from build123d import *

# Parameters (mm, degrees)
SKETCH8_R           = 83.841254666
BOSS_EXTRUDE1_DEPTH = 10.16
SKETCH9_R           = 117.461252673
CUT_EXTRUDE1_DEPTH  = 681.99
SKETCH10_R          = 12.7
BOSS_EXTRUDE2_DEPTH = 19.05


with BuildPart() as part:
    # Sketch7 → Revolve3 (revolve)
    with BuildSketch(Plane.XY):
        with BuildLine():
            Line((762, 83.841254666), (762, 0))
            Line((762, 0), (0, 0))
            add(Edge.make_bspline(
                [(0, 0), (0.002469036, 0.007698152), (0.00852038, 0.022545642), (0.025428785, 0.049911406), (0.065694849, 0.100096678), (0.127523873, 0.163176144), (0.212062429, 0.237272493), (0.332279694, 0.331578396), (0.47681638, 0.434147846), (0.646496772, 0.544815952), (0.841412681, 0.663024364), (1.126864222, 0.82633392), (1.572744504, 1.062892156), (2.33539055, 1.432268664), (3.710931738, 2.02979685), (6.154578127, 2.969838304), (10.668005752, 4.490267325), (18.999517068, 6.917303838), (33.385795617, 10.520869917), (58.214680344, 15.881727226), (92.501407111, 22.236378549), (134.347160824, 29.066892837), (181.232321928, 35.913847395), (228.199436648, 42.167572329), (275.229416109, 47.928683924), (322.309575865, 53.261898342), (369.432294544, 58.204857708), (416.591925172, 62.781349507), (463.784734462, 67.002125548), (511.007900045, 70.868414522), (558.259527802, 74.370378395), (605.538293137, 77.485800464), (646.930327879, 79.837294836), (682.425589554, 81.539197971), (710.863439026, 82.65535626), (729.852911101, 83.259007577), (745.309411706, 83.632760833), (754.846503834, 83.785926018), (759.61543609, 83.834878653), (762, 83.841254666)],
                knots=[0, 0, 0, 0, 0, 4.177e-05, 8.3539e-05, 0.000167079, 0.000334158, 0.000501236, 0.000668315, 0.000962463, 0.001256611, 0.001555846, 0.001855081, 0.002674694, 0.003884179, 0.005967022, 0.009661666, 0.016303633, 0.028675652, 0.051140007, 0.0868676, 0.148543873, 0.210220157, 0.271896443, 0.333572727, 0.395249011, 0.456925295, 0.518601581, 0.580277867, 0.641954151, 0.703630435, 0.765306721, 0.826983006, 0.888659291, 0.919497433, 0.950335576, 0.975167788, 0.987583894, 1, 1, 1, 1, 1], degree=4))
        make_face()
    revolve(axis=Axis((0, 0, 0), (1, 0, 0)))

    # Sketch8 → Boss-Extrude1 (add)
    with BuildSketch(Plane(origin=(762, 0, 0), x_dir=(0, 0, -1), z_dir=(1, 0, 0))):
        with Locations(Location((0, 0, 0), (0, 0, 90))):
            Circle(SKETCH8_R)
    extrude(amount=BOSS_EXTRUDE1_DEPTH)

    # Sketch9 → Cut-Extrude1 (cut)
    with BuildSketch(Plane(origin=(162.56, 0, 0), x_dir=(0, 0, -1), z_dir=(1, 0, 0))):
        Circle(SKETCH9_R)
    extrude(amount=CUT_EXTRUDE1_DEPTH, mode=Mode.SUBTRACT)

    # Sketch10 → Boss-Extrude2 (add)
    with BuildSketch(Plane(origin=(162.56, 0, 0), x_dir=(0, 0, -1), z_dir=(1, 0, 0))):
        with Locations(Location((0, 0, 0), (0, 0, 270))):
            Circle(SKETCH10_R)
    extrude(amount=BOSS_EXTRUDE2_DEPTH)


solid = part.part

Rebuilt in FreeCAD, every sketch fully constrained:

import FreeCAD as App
import Part
import Sketcher

V = App.Vector
Q = App.Units.Quantity

doc = App.newDocument("Part")
body = doc.addObject("PartDesign::Body", "Body")

# Sketch on XY plane
sketch1 = doc.addObject("Sketcher::SketchObject", "Sketch")
body.addObject(sketch1)
sketch1.AttachmentSupport = (doc.XY_Plane, [""])
sketch1.MapMode = "FlatFace"
sketch1.addGeometry(Part.LineSegment(V(762, 0, 0), V(762, 83.841255, 0)), False)
sketch1.addGeometry(Part.BSplineCurve([V(0, 0, 0), V(0.002469, 0.007698, 0), V(0.00852, 0.022546, 0), V(0.025429, 0.049911, 0), V(0.065695, 0.100097, 0), V(0.127524, 0.163176, 0), V(0.212062, 0.237272, 0), V(0.33228, 0.331578, 0), V(0.476816, 0.434148, 0), V(0.646497, 0.544816, 0), V(0.841413, 0.663024, 0), V(1.126864, 0.826334, 0), V(1.572745, 1.062892, 0), V(2.335391, 1.432269, 0), V(3.710932, 2.029797, 0), V(6.154578, 2.969838, 0), V(10.668006, 4.490267, 0), V(18.999517, 6.917304, 0), V(33.385796, 10.52087, 0), V(58.21468, 15.881727, 0), V(92.501407, 22.236379, 0), V(134.347161, 29.066893, 0), V(181.232322, 35.913847, 0), V(228.199437, 42.167572, 0), V(275.229416, 47.928684, 0), V(322.309576, 53.261898, 0), V(369.432295, 58.204858, 0), V(416.591925, 62.78135, 0), V(463.784734, 67.002126, 0), V(511.0079, 70.868415, 0), V(558.259528, 74.370378, 0), V(605.538293, 77.4858, 0), V(646.930328, 79.837295, 0), V(682.42559, 81.539198, 0), V(710.863439, 82.655356, 0), V(729.852911, 83.259008, 0), V(745.309412, 83.632761, 0), V(754.846504, 83.785926, 0), V(759.615436, 83.834879, 0), V(762, 83.841255, 0)], [5, 1, 1, 1, 1, 1, 1, 1, 1, 1, 1, 1, 1, 1, 1, 1, 1, 1, 1, 1, 1, 1, 1, 1, 1, 1, 1, 1, 1, 1, 1, 1, 1, 1, 1, 1, 5], [0, 0.00004177, 0.000083539, 0.000167079, 0.000334158, 0.000501236, 0.000668315, 0.000962463, 0.001256611, 0.001555846, 0.001855081, 0.002674694, 0.003884179, 0.005967022, 0.009661666, 0.016303633, 0.028675652, 0.051140007, 0.0868676, 0.148543873, 0.210220157, 0.271896443, 0.333572727, 0.395249011, 0.456925295, 0.518601581, 0.580277867, 0.641954151, 0.703630435, 0.765306721, 0.826983006, 0.888659291, 0.919497433, 0.950335576, 0.975167788, 0.987583894, 1], False, 4, [1, 1, 1, 1, 1, 1, 1, 1, 1, 1, 1, 1, 1, 1, 1, 1, 1, 1, 1, 1, 1, 1, 1, 1, 1, 1, 1, 1, 1, 1, 1, 1, 1, 1, 1, 1, 1, 1, 1, 1], False), False)
sketch1.addGeometry(Part.LineSegment(V(0, 0, 0), V(762, 0, 0)), False)
sketch1.addConstraint(Sketcher.Constraint("Block", 1))
sketch1.addConstraint(Sketcher.Constraint("Coincident", 0, 2, 1, 2))
sketch1.addConstraint(Sketcher.Constraint("Coincident", 1, 1, 2, 1))
sketch1.addConstraint(Sketcher.Constraint("Coincident", 2, 2, 0, 1))
sketch1.addConstraint(Sketcher.Constraint("Vertical", 0))
sketch1.addConstraint(Sketcher.Constraint("Horizontal", 2))
revolution = doc.addObject("PartDesign::Revolution", "Revolution")
body.addObject(revolution)
revolution.Profile = sketch1
revolution.ReferenceAxis = (sketch1, ["H_Axis"])
revolution.Angle = 360

# Sketch on YZ plane
sketch2 = doc.addObject("Sketcher::SketchObject", "Sketch001")
body.addObject(sketch2)
sketch2.AttachmentSupport = (doc.YZ_Plane, [""])
sketch2.MapMode = "FlatFace"
sketch2.AttachmentOffset = App.Placement(V(0, 0, 30 * 25.4), App.Rotation())
sketch2.addGeometry(Part.Circle(V(0, 0, 0), V(0, 0, 1), 84), False)
sketch2.addConstraint(Sketcher.Constraint("Coincident", 0, 3, -1, 1))
sketch2.addConstraint(Sketcher.Constraint("Diameter", 0, 167.682509))
pad1 = doc.addObject("PartDesign::Pad", "Pad")
body.addObject(pad1)
pad1.Profile = sketch2
pad1.Length = Q("0.4 in")

# Sketch on YZ plane
sketch3 = doc.addObject("Sketcher::SketchObject", "Sketch002")
body.addObject(sketch3)
sketch3.AttachmentSupport = (doc.YZ_Plane, [""])
sketch3.MapMode = "FlatFace"
sketch3.AttachmentOffset = App.Placement(V(0, 0, 6.4 * 25.4), App.Rotation())
sketch3.addGeometry(Part.Circle(V(0, 0, 0), V(0, 0, 1), 117), False)
sketch3.addConstraint(Sketcher.Constraint("Coincident", 0, 3, -1, 1))
sketch3.addConstraint(Sketcher.Constraint("Diameter", 0, 234.922505))
pocket1 = doc.addObject("PartDesign::Pocket", "Pocket")
body.addObject(pocket1)
pocket1.Profile = sketch3
pocket1.Length = Q("26.85 in")
pocket1.Reversed = True

# Sketch on YZ plane
sketch4 = doc.addObject("Sketcher::SketchObject", "Sketch003")
body.addObject(sketch4)
sketch4.AttachmentSupport = (doc.YZ_Plane, [""])
sketch4.MapMode = "FlatFace"
sketch4.AttachmentOffset = App.Placement(V(0, 0, 6.4 * 25.4), App.Rotation())
sketch4.addGeometry(Part.Circle(V(0, 0, 0), V(0, 0, 1), 13), False)
sketch4.addConstraint(Sketcher.Constraint("Coincident", 0, 3, -1, 1))
sketch4.addConstraint(Sketcher.Constraint("Diameter", 0, Q("1 in")))
pad2 = doc.addObject("PartDesign::Pad", "Pad001")
body.addObject(pad2)
pad2.Profile = sketch4
pad2.Length = Q("0.75 in")

doc.recompute()
